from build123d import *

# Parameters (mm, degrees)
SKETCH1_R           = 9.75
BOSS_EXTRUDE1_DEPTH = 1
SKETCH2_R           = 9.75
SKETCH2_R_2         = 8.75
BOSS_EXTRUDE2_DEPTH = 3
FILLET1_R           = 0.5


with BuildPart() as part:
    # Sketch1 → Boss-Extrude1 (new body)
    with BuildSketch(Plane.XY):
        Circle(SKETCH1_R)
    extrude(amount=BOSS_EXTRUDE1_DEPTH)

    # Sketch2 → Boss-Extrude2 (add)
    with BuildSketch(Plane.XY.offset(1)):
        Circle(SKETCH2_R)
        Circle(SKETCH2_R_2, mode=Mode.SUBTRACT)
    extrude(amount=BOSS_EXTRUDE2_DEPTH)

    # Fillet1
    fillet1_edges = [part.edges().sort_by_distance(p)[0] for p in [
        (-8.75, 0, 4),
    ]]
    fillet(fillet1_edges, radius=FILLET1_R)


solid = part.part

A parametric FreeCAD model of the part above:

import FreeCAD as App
import Part
import Sketcher
Q = App.Units.Quantity


def edges_at(feature, points):
    """Names of the edges that pass closest to the given points."""
    edges = feature.Shape.Edges
    near = lambda p: min(range(len(edges)), key=lambda i: edges[i].distToShape(Part.Vertex(*p))[0])
    return sorted({f"Edge{near(p) + 1}" for p in points})

doc = App.newDocument("Part")
params = doc.addObject("Spreadsheet::Sheet", "Params")
for row, (alias, value) in enumerate([
    ("sketch1_diameter", "19.5 mm"),
    ("pad1_length", "1 mm"),
    ("sketch2_diameter", "19.5 mm"),
    ("sketch2_diameter2", "17.5 mm"),
    ("pad2_length", "3 mm"),
    ("fillet_radius", "0.5 mm"),
], start=1):
    params.set(f"A{row}", alias)
    params.set(f"B{row}", "=" + value)
    params.setAlias(f"B{row}", alias)

body = doc.addObject("PartDesign::Body", "Body")

# Sketch on XY plane
sketch1 = body.newObject("Sketcher::SketchObject", "Sketch")
sketch1.AttachmentSupport = (doc.getObject("XY_Plane"), [""])
sketch1.MapMode = "FlatFace"
sketch1.addGeometry(Part.Circle(App.Vector(0, 0, 0), App.Vector(0, 0, 1), 10), False)
sketch1.addConstraint([
    Sketcher.Constraint("Coincident", 0, 3, -1, 1),
    Sketcher.Constraint("Diameter", 0, Q("19.5 mm")),
])
sketch1.setExpression("Constraints[1]", "Params.sketch1_diameter")
pad1 = body.newObject("PartDesign::Pad", "Pad")
pad1.Profile = sketch1
pad1.setExpression("Length", "Params.pad1_length")

# Sketch on XY plane
sketch2 = body.newObject("Sketcher::SketchObject", "Sketch001")
sketch2.AttachmentSupport = (doc.getObject("XY_Plane"), [""])
sketch2.MapMode = "FlatFace"
sketch2.AttachmentOffset = App.Placement(App.Vector(0, 0, 1), App.Rotation())
sketch2.addGeometry([
    Part.Circle(App.Vector(0, 0, 0), App.Vector(0, 0, 1), 10),
    Part.Circle(App.Vector(0, 0, 0), App.Vector(0, 0, 1), 9),
], False)
sketch2.addConstraint([
    Sketcher.Constraint("Coincident", 0, 3, -1, 1),
    Sketcher.Constraint("Coincident", 1, 3, -1, 1),
    Sketcher.Constraint("Diameter", 0, Q("19.5 mm")),
    Sketcher.Constraint("Diameter", 1, Q("17.5 mm")),
])
sketch2.setExpression("Constraints[2]", "Params.sketch2_diameter")
sketch2.setExpression("Constraints[3]", "Params.sketch2_diameter2")
pad2 = body.newObject("PartDesign::Pad", "Pad001")
pad2.Profile = sketch2
pad2.setExpression("Length", "Params.pad2_length")
doc.recompute()

fillet = body.newObject("PartDesign::Fillet", "Fillet")
fillet.Base = (pad2, edges_at(pad2, [(-8.75, 0, 4)]))
fillet.setExpression("Radius", "Params.fillet_radius")

doc.recompute()
